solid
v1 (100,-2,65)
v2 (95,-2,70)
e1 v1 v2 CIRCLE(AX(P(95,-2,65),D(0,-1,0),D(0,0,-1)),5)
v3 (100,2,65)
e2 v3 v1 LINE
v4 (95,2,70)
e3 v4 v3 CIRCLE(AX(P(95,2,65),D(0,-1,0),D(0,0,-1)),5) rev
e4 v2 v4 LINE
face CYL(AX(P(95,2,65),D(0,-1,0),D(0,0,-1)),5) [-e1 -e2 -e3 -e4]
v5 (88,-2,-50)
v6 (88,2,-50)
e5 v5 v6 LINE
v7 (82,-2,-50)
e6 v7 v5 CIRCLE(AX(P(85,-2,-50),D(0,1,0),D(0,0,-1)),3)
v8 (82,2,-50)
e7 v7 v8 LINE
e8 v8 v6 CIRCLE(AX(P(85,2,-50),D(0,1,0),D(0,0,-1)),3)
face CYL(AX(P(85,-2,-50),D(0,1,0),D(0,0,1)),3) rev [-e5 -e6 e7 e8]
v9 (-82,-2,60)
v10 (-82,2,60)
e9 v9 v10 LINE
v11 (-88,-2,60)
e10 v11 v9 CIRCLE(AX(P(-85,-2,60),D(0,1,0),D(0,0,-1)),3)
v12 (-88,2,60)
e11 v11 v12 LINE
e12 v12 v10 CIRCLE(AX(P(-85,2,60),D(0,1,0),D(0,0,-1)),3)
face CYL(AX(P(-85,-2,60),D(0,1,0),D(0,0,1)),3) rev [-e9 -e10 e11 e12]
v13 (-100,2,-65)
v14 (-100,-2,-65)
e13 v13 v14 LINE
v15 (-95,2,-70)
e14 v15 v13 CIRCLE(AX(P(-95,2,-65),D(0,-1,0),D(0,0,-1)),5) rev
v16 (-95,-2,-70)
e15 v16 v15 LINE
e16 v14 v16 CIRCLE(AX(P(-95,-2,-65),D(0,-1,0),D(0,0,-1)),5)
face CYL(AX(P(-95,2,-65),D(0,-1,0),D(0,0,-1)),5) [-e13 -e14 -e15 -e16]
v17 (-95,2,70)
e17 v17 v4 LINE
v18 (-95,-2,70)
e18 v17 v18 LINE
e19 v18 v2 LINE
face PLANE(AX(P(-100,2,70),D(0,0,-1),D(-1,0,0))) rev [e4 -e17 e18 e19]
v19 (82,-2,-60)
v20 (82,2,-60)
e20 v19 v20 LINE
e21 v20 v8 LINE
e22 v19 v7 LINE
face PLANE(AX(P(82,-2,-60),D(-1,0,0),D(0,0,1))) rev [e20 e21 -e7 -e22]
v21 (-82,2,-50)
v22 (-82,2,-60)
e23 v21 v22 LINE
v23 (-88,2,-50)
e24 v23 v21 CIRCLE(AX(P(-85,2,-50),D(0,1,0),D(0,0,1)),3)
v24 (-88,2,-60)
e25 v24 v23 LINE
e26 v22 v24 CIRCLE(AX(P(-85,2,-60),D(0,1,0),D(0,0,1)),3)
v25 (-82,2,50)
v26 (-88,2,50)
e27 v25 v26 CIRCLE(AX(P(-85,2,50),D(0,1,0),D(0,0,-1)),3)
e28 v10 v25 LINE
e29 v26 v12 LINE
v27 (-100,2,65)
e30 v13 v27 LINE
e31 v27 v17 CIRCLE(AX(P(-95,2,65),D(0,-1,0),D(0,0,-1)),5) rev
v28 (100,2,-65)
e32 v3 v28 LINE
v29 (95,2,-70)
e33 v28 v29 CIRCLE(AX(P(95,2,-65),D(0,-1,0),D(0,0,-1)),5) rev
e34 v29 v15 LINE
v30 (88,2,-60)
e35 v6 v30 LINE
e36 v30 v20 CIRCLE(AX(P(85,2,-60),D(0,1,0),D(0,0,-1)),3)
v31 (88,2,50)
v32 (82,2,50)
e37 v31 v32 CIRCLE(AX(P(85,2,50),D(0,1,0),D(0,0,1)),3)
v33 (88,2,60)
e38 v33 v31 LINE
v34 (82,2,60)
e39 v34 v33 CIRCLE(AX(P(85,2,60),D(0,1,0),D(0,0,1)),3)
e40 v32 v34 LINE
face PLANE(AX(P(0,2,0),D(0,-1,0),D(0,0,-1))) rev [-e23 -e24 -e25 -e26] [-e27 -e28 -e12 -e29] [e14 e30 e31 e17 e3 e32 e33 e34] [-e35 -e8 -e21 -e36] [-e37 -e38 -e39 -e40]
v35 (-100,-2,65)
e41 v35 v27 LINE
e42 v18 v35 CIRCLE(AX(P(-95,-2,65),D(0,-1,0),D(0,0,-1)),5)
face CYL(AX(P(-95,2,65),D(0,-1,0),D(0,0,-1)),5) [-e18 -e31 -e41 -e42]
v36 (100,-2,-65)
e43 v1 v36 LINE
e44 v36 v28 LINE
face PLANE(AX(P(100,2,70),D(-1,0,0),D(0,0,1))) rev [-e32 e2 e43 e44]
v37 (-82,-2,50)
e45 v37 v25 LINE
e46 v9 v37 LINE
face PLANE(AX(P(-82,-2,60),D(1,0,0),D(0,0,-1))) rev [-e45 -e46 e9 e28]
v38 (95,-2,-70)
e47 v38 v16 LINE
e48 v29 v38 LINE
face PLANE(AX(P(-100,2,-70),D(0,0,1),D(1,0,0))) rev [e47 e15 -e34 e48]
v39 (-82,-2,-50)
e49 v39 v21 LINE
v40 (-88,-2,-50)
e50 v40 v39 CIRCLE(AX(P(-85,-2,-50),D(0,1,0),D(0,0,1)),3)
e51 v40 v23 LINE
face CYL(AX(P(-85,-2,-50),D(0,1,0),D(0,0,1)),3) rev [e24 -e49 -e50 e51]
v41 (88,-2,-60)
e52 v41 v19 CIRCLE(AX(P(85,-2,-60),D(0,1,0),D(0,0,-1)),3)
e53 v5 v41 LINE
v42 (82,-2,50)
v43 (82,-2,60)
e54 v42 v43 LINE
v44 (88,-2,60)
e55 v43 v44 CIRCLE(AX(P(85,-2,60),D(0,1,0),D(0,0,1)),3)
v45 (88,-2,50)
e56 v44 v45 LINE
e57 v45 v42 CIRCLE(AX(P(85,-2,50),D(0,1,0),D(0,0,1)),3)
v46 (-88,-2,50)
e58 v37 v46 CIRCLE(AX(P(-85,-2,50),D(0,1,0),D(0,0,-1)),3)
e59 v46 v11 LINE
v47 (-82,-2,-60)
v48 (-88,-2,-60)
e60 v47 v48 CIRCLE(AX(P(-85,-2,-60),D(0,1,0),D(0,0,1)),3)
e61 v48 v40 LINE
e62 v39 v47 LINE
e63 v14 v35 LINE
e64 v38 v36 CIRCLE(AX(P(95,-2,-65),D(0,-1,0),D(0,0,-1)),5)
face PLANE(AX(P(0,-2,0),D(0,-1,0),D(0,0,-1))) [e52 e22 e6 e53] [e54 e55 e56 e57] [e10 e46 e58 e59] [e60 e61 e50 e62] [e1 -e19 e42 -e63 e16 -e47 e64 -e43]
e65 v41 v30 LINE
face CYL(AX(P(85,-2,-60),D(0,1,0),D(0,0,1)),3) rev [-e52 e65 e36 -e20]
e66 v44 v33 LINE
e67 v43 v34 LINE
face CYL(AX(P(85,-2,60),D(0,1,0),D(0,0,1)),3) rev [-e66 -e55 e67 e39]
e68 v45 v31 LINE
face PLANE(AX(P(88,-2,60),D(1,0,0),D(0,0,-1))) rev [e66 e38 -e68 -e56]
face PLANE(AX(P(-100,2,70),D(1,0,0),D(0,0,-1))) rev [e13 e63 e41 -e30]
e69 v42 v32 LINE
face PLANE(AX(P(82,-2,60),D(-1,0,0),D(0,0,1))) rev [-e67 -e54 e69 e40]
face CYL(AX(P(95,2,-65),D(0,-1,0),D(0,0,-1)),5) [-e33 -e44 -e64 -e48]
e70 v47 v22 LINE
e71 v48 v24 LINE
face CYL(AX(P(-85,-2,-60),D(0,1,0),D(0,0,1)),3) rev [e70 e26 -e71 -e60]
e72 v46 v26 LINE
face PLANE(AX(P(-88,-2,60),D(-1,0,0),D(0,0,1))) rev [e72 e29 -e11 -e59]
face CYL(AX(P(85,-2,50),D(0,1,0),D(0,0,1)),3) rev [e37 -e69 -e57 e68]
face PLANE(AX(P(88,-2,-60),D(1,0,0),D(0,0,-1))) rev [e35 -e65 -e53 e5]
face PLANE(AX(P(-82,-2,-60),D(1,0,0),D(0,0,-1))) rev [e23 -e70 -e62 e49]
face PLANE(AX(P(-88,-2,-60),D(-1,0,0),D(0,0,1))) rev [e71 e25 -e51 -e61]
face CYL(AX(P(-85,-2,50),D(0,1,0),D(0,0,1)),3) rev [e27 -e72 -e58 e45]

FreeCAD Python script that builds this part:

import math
import FreeCAD as App
import Part
import Sketcher
from FreeCAD import Vector


def edges_at(feature, points):
    """Names of the edges that pass closest to the given points."""
    edges = feature.Shape.Edges
    near = lambda p: min(range(len(edges)), key=lambda i: edges[i].distToShape(Part.Vertex(*p))[0])
    return sorted({f"Edge{near(p) + 1}" for p in points})


def add_polygon(sketch, points):
    """Adds a closed chain of lines whose ends are joined by coincident constraints."""
    first, n = sketch.GeometryCount, len(points)
    for a, b in zip(points, points[1:] + points[:1]):
        sketch.addGeometry(Part.LineSegment(App.Vector(*a, 0), App.Vector(*b, 0)), False)
    for i in range(n):
        sketch.addConstraint(Sketcher.Constraint("Coincident", first + i, 2, first + (i + 1) % n, 1))

doc = App.newDocument("Part")
params = doc.addObject("Spreadsheet::Sheet", "Params")
for row, (alias, value) in enumerate([
    ("sketch1_width", "200 mm"),
    ("sketch1_height", "140 mm"),
    ("pad1_length", "4 mm"),
    ("sketch2_radius", "3 mm"),
    ("sketch2_height", "10 mm"),
    ("fillet_radius", "5 mm"),
], start=1):
    params.set(f"A{row}", alias)
    params.set(f"B{row}", "=" + value)
    params.setAlias(f"B{row}", alias)

body = doc.addObject("PartDesign::Body", "Body")

sketch1 = body.newObject("Sketcher::SketchObject", "Sketch")
sketch1.AttachmentSupport = (doc.getObject("XZ_Plane"), [""])
sketch1.MapMode = "FlatFace"
add_polygon(sketch1, [(-100, -70), (-100, 70), (100, 70), (100, -70)])
sketch1.addConstraint(Sketcher.Constraint("Vertical", 0))
sketch1.addConstraint(Sketcher.Constraint("Horizontal", 1))
sketch1.addConstraint(Sketcher.Constraint("Vertical", 2))
sketch1.addConstraint(Sketcher.Constraint("Horizontal", 3))
sketch1.addConstraint(Sketcher.Constraint("Symmetric", 0, 2, 2, 2, -1, 1))
sketch1.addConstraint(Sketcher.Constraint("DistanceX", 1, 1, 1, 2, 200.0))
sketch1.addConstraint(Sketcher.Constraint("DistanceY", 0, 1, 0, 2, 140.0))
sketch1.setExpression("Constraints[9]", "Params.sketch1_width")
sketch1.setExpression("Constraints[10]", "Params.sketch1_height")
pad1 = body.newObject("PartDesign::Pad", "Pad")
pad1.Profile = sketch1
pad1.setExpression("Length", "Params.pad1_length")
pad1.Midplane = True

sketch2 = body.newObject("Sketcher::SketchObject", "Sketch001")
sketch2.AttachmentSupport = (doc.getObject("XZ_Plane"), [""])
sketch2.MapMode = "FlatFace"
sketch2.AttachmentOffset = App.Placement(Vector(0, 0, -2), App.Rotation())
sketch2.addGeometry(Part.LineSegment(Vector(-82, -50, 0), Vector(-82, -60, 0)), False)
sketch2.addGeometry(Part.ArcOfCircle(Part.Circle(Vector(-85, -60, 0), Vector(0, 0, 1), 3), math.radians(180), math.radians(360)), False)
sketch2.addGeometry(Part.LineSegment(Vector(-88, -60, 0), Vector(-88, -50, 0)), False)
sketch2.addGeometry(Part.ArcOfCircle(Part.Circle(Vector(-85, -50, 0), Vector(0, 0, 1), 3), math.radians(0), math.radians(180)), False)
sketch2.addGeometry(Part.LineSegment(Vector(82, -60, 0), Vector(82, -50, 0)), False)
sketch2.addGeometry(Part.ArcOfCircle(Part.Circle(Vector(85, -50, 0), Vector(0, 0, 1), 3), math.radians(0), math.radians(180)), False)
sketch2.addGeometry(Part.LineSegment(Vector(88, -50, 0), Vector(88, -60, 0)), False)
sketch2.addGeometry(Part.ArcOfCircle(Part.Circle(Vector(85, -60, 0), Vector(0, 0, 1), 3), math.radians(180), math.radians(360)), False)
sketch2.addGeometry(Part.LineSegment(Vector(82, 50, 0), Vector(82, 60, 0)), False)
sketch2.addGeometry(Part.ArcOfCircle(Part.Circle(Vector(85, 60, 0), Vector(0, 0, 1), 3), math.radians(0), math.radians(180)), False)
sketch2.addGeometry(Part.LineSegment(Vector(88, 60, 0), Vector(88, 50, 0)), False)
sketch2.addGeometry(Part.ArcOfCircle(Part.Circle(Vector(85, 50, 0), Vector(0, 0, 1), 3), math.radians(180), math.radians(360)), False)
sketch2.addGeometry(Part.LineSegment(Vector(-82, 60, 0), Vector(-82, 50, 0)), False)
sketch2.addGeometry(Part.ArcOfCircle(Part.Circle(Vector(-85, 50, 0), Vector(0, 0, 1), 3), math.radians(180), math.radians(360)), False)
sketch2.addGeometry(Part.LineSegment(Vector(-88, 50, 0), Vector(-88, 60, 0)), False)
sketch2.addGeometry(Part.ArcOfCircle(Part.Circle(Vector(-85, 60, 0), Vector(0, 0, 1), 3), math.radians(0), math.radians(180)), False)
sketch2.addConstraint(Sketcher.Constraint("Tangent", 0, 2, 1, 2))
sketch2.addConstraint(Sketcher.Constraint("Tangent", 1, 1, 2, 1))
sketch2.addConstraint(Sketcher.Constraint("Tangent", 2, 2, 3, 2))
sketch2.addConstraint(Sketcher.Constraint("Tangent", 3, 1, 0, 1))
sketch2.addConstraint(Sketcher.Constraint("Tangent", 4, 2, 5, 2))
sketch2.addConstraint(Sketcher.Constraint("Tangent", 5, 1, 6, 1))
sketch2.addConstraint(Sketcher.Constraint("Tangent", 6, 2, 7, 2))
sketch2.addConstraint(Sketcher.Constraint("Tangent", 7, 1, 4, 1))
sketch2.addConstraint(Sketcher.Constraint("Tangent", 8, 2, 9, 2))
sketch2.addConstraint(Sketcher.Constraint("Tangent", 9, 1, 10, 1))
sketch2.addConstraint(Sketcher.Constraint("Tangent", 10, 2, 11, 2))
sketch2.addConstraint(Sketcher.Constraint("Tangent", 11, 1, 8, 1))
sketch2.addConstraint(Sketcher.Constraint("Tangent", 12, 2, 13, 2))
sketch2.addConstraint(Sketcher.Constraint("Tangent", 13, 1, 14, 1))
sketch2.addConstraint(Sketcher.Constraint("Tangent", 14, 2, 15, 2))
sketch2.addConstraint(Sketcher.Constraint("Tangent", 15, 1, 12, 1))
sketch2.addConstraint(Sketcher.Constraint("Vertical", 0))
sketch2.addConstraint(Sketcher.Constraint("Vertical", 2))
sketch2.addConstraint(Sketcher.Constraint("Vertical", 4))
sketch2.addConstraint(Sketcher.Constraint("Vertical", 6))
sketch2.addConstraint(Sketcher.Constraint("Vertical", 8))
sketch2.addConstraint(Sketcher.Constraint("Vertical", 10))
sketch2.addConstraint(Sketcher.Constraint("Vertical", 12))
sketch2.addConstraint(Sketcher.Constraint("Vertical", 14))
sketch2.addConstraint(Sketcher.Constraint("Equal", 3, 5))
sketch2.addConstraint(Sketcher.Constraint("Equal", 7, 9))
sketch2.addConstraint(Sketcher.Constraint("Equal", 11, 13))
sketch2.addConstraint(Sketcher.Constraint("Symmetric", 1, 3, 9, 3, -1, 1))
sketch2.addConstraint(Sketcher.Constraint("Symmetric", 5, 3, 13, 3, -1, 1))
sketch2.addConstraint(Sketcher.Constraint("Symmetric", 3, 3, 5, 3, -2))
sketch2.addConstraint(Sketcher.Constraint("Horizontal", 1, 3, 7, 3))
sketch2.addConstraint(Sketcher.Constraint("Horizontal", 11, 3, 13, 3))
sketch2.addConstraint(Sketcher.Constraint("Horizontal", 9, 3, 15, 3))
sketch2.addConstraint(Sketcher.Constraint("Radius", 1, 3.0))
sketch2.addConstraint(Sketcher.Constraint("DistanceY", 0, 2, 0, 1, 10.0))
sketch2.addConstraint(Sketcher.Constraint("DistanceX", 1, 3, -1, 1, 85.0))
sketch2.addConstraint(Sketcher.Constraint("DistanceY", 1, 3, -1, 1, 60.0))
sketch2.setExpression("Constraints[33]", "Params.sketch2_radius")
sketch2.setExpression("Constraints[34]", "Params.sketch2_height")
pocket1 = body.newObject("PartDesign::Pocket", "Pocket")
pocket1.Profile = sketch2
pocket1.Type = "ThroughAll"
pocket1.Reversed = True
doc.recompute()

fillet = body.newObject("PartDesign::Fillet", "Fillet")
fillet.Base = (pocket1, edges_at(pocket1, [
    (100, 0, 70),
    (-100, 0, 70),
    (-100, 0, -70),
    (100, 0, -70),
]))
fillet.setExpression("Radius", "Params.fillet_radius")

doc.recompute()
